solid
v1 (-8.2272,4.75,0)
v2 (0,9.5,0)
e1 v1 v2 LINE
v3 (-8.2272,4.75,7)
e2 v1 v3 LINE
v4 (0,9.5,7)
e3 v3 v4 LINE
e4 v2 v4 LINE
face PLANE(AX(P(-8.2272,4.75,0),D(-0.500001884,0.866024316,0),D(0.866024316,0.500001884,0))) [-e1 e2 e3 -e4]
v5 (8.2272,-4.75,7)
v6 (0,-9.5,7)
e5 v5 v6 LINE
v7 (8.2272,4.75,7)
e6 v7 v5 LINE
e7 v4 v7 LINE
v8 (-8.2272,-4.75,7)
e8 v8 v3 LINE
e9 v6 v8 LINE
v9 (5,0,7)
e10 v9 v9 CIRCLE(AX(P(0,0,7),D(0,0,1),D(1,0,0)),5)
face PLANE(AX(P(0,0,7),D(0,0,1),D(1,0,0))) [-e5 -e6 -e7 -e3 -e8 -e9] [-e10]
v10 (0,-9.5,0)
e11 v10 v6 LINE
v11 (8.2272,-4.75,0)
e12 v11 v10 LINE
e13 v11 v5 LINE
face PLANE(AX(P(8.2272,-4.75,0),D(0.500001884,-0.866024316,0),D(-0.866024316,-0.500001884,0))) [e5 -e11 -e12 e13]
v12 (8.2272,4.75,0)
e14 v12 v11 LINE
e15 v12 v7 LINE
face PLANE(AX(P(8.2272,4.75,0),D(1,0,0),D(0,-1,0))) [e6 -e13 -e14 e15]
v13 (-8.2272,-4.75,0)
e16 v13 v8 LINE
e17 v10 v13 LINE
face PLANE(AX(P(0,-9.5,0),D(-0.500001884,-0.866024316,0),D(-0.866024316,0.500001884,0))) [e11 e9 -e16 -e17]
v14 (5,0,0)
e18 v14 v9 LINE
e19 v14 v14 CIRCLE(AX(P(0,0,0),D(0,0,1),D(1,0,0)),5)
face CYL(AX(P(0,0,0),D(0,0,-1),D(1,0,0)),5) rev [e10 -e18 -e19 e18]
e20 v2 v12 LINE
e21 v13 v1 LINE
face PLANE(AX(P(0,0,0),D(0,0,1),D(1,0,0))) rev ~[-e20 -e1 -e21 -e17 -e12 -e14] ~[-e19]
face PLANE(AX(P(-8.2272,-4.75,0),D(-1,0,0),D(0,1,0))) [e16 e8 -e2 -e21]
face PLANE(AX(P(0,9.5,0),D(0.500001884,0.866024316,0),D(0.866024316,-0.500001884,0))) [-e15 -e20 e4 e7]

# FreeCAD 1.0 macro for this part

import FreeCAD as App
import Part
import Sketcher
from FreeCAD import Vector
Q = App.Units.Quantity

doc = App.newDocument("Part")
body = doc.addObject("PartDesign::Body", "Body")

# Sketch on XY plane
sketch1 = body.newObject("Sketcher::SketchObject", "Sketch")
sketch1.AttachmentSupport = (doc.getObject("XY_Plane"), [""])
sketch1.MapMode = "FlatFace"
sketch1.addGeometry([
    Part.LineSegment(Vector(8, 5, 0), Vector(0, 10, 0)),  # 0
    Part.LineSegment(Vector(0, 10, 0), Vector(-8, 5, 0)),  # 1
    Part.LineSegment(Vector(-8, 5, 0), Vector(-8, -5, 0)),  # 2
    Part.LineSegment(Vector(-8, -5, 0), Vector(0, -10, 0)),  # 3
    Part.LineSegment(Vector(0, -10, 0), Vector(8, -5, 0)),  # 4
    Part.LineSegment(Vector(8, -5, 0), Vector(8, 5, 0)),  # 5
    Part.Circle(Vector(0, 0, 0), Vector(0, 0, 1), 5),  # 6
], False)
sketch1.addConstraint([
    Sketcher.Constraint("Coincident", 0, 2, 1, 1),
    Sketcher.Constraint("Coincident", 1, 2, 2, 1),
    Sketcher.Constraint("Coincident", 2, 2, 3, 1),
    Sketcher.Constraint("Coincident", 3, 2, 4, 1),
    Sketcher.Constraint("Coincident", 4, 2, 5, 1),
    Sketcher.Constraint("Coincident", 5, 2, 0, 1),
    Sketcher.Constraint("Vertical", 2),
    Sketcher.Constraint("Vertical", 5),
    Sketcher.Constraint("Coincident", 6, 3, -1, 1),
    Sketcher.Constraint("Symmetric", 0, 2, 3, 2, -1, 1),
    Sketcher.Constraint("Symmetric", 1, 2, 4, 2, -1, 1),
    Sketcher.Constraint("PointOnObject", 0, 2, -2),
    Sketcher.Constraint("Parallel", 0, 3),
    Sketcher.Constraint("Horizontal", 2, 2, 4, 2),
    Sketcher.Constraint("Diameter", 6, 10.0),
    Sketcher.Constraint("DistanceY", 3, 2, 0, 2, 19.0),
    Sketcher.Constraint("Angle", 0, Q("149.9999 deg")),
    Sketcher.Constraint("DistanceY", 2, 2, 2, 1, 9.5),
])
pad1 = body.newObject("PartDesign::Pad", "Pad")
pad1.Profile = sketch1
pad1.Length = 7

doc.recompute()
